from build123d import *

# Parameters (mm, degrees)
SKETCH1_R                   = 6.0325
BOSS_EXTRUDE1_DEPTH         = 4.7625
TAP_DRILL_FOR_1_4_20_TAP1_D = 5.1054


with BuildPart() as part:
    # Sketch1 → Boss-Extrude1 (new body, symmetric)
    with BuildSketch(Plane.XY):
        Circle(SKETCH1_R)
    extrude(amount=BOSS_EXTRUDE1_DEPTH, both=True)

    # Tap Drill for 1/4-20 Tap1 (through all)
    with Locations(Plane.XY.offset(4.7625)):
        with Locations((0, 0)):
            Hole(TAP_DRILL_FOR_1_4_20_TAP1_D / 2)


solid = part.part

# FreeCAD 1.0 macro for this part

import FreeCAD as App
import Part
import Sketcher

V = App.Vector
Q = App.Units.Quantity

doc = App.newDocument("Part")
body = doc.addObject("PartDesign::Body", "Body")

# Sketch on XY plane
sketch1 = doc.addObject("Sketcher::SketchObject", "Sketch")
body.addObject(sketch1)
sketch1.AttachmentSupport = (doc.XY_Plane, [""])
sketch1.MapMode = "FlatFace"
sketch1.addGeometry(Part.Circle(V(0, 0, 0), V(0, 0, 1), 6), False)
sketch1.addConstraint(Sketcher.Constraint("Coincident", 0, 3, -1, 1))
sketch1.addConstraint(Sketcher.Constraint("Diameter", 0, Q("0.475 in")))
pad1 = doc.addObject("PartDesign::Pad", "Pad")
body.addObject(pad1)
pad1.Profile = sketch1
pad1.Length = Q("0.375 in")
pad1.Midplane = True

# Sketch on XY plane
sketch2 = doc.addObject("Sketcher::SketchObject", "Sketch001")
body.addObject(sketch2)
sketch2.AttachmentSupport = (doc.XY_Plane, [""])
sketch2.MapMode = "FlatFace"
sketch2.AttachmentOffset = App.Placement(V(0, 0, 0.1875 * 25.4), App.Rotation())
sketch2.addGeometry(Part.Circle(V(0, 0, 0), V(0, 0, 1), 2.6), False)
sketch2.addConstraint(Sketcher.Constraint("Coincident", 0, 3, -1, 1))
sketch2.addConstraint(Sketcher.Constraint("Diameter", 0, Q("0.201 in")))
doc.recompute()
hole = doc.addObject("PartDesign::Hole", "Hole")
body.addObject(hole)
hole.Profile = sketch2
hole.ThreadType = "None"
hole.Diameter = Q("0.201 in")
hole.DepthType = "ThroughAll"

doc.recompute()
